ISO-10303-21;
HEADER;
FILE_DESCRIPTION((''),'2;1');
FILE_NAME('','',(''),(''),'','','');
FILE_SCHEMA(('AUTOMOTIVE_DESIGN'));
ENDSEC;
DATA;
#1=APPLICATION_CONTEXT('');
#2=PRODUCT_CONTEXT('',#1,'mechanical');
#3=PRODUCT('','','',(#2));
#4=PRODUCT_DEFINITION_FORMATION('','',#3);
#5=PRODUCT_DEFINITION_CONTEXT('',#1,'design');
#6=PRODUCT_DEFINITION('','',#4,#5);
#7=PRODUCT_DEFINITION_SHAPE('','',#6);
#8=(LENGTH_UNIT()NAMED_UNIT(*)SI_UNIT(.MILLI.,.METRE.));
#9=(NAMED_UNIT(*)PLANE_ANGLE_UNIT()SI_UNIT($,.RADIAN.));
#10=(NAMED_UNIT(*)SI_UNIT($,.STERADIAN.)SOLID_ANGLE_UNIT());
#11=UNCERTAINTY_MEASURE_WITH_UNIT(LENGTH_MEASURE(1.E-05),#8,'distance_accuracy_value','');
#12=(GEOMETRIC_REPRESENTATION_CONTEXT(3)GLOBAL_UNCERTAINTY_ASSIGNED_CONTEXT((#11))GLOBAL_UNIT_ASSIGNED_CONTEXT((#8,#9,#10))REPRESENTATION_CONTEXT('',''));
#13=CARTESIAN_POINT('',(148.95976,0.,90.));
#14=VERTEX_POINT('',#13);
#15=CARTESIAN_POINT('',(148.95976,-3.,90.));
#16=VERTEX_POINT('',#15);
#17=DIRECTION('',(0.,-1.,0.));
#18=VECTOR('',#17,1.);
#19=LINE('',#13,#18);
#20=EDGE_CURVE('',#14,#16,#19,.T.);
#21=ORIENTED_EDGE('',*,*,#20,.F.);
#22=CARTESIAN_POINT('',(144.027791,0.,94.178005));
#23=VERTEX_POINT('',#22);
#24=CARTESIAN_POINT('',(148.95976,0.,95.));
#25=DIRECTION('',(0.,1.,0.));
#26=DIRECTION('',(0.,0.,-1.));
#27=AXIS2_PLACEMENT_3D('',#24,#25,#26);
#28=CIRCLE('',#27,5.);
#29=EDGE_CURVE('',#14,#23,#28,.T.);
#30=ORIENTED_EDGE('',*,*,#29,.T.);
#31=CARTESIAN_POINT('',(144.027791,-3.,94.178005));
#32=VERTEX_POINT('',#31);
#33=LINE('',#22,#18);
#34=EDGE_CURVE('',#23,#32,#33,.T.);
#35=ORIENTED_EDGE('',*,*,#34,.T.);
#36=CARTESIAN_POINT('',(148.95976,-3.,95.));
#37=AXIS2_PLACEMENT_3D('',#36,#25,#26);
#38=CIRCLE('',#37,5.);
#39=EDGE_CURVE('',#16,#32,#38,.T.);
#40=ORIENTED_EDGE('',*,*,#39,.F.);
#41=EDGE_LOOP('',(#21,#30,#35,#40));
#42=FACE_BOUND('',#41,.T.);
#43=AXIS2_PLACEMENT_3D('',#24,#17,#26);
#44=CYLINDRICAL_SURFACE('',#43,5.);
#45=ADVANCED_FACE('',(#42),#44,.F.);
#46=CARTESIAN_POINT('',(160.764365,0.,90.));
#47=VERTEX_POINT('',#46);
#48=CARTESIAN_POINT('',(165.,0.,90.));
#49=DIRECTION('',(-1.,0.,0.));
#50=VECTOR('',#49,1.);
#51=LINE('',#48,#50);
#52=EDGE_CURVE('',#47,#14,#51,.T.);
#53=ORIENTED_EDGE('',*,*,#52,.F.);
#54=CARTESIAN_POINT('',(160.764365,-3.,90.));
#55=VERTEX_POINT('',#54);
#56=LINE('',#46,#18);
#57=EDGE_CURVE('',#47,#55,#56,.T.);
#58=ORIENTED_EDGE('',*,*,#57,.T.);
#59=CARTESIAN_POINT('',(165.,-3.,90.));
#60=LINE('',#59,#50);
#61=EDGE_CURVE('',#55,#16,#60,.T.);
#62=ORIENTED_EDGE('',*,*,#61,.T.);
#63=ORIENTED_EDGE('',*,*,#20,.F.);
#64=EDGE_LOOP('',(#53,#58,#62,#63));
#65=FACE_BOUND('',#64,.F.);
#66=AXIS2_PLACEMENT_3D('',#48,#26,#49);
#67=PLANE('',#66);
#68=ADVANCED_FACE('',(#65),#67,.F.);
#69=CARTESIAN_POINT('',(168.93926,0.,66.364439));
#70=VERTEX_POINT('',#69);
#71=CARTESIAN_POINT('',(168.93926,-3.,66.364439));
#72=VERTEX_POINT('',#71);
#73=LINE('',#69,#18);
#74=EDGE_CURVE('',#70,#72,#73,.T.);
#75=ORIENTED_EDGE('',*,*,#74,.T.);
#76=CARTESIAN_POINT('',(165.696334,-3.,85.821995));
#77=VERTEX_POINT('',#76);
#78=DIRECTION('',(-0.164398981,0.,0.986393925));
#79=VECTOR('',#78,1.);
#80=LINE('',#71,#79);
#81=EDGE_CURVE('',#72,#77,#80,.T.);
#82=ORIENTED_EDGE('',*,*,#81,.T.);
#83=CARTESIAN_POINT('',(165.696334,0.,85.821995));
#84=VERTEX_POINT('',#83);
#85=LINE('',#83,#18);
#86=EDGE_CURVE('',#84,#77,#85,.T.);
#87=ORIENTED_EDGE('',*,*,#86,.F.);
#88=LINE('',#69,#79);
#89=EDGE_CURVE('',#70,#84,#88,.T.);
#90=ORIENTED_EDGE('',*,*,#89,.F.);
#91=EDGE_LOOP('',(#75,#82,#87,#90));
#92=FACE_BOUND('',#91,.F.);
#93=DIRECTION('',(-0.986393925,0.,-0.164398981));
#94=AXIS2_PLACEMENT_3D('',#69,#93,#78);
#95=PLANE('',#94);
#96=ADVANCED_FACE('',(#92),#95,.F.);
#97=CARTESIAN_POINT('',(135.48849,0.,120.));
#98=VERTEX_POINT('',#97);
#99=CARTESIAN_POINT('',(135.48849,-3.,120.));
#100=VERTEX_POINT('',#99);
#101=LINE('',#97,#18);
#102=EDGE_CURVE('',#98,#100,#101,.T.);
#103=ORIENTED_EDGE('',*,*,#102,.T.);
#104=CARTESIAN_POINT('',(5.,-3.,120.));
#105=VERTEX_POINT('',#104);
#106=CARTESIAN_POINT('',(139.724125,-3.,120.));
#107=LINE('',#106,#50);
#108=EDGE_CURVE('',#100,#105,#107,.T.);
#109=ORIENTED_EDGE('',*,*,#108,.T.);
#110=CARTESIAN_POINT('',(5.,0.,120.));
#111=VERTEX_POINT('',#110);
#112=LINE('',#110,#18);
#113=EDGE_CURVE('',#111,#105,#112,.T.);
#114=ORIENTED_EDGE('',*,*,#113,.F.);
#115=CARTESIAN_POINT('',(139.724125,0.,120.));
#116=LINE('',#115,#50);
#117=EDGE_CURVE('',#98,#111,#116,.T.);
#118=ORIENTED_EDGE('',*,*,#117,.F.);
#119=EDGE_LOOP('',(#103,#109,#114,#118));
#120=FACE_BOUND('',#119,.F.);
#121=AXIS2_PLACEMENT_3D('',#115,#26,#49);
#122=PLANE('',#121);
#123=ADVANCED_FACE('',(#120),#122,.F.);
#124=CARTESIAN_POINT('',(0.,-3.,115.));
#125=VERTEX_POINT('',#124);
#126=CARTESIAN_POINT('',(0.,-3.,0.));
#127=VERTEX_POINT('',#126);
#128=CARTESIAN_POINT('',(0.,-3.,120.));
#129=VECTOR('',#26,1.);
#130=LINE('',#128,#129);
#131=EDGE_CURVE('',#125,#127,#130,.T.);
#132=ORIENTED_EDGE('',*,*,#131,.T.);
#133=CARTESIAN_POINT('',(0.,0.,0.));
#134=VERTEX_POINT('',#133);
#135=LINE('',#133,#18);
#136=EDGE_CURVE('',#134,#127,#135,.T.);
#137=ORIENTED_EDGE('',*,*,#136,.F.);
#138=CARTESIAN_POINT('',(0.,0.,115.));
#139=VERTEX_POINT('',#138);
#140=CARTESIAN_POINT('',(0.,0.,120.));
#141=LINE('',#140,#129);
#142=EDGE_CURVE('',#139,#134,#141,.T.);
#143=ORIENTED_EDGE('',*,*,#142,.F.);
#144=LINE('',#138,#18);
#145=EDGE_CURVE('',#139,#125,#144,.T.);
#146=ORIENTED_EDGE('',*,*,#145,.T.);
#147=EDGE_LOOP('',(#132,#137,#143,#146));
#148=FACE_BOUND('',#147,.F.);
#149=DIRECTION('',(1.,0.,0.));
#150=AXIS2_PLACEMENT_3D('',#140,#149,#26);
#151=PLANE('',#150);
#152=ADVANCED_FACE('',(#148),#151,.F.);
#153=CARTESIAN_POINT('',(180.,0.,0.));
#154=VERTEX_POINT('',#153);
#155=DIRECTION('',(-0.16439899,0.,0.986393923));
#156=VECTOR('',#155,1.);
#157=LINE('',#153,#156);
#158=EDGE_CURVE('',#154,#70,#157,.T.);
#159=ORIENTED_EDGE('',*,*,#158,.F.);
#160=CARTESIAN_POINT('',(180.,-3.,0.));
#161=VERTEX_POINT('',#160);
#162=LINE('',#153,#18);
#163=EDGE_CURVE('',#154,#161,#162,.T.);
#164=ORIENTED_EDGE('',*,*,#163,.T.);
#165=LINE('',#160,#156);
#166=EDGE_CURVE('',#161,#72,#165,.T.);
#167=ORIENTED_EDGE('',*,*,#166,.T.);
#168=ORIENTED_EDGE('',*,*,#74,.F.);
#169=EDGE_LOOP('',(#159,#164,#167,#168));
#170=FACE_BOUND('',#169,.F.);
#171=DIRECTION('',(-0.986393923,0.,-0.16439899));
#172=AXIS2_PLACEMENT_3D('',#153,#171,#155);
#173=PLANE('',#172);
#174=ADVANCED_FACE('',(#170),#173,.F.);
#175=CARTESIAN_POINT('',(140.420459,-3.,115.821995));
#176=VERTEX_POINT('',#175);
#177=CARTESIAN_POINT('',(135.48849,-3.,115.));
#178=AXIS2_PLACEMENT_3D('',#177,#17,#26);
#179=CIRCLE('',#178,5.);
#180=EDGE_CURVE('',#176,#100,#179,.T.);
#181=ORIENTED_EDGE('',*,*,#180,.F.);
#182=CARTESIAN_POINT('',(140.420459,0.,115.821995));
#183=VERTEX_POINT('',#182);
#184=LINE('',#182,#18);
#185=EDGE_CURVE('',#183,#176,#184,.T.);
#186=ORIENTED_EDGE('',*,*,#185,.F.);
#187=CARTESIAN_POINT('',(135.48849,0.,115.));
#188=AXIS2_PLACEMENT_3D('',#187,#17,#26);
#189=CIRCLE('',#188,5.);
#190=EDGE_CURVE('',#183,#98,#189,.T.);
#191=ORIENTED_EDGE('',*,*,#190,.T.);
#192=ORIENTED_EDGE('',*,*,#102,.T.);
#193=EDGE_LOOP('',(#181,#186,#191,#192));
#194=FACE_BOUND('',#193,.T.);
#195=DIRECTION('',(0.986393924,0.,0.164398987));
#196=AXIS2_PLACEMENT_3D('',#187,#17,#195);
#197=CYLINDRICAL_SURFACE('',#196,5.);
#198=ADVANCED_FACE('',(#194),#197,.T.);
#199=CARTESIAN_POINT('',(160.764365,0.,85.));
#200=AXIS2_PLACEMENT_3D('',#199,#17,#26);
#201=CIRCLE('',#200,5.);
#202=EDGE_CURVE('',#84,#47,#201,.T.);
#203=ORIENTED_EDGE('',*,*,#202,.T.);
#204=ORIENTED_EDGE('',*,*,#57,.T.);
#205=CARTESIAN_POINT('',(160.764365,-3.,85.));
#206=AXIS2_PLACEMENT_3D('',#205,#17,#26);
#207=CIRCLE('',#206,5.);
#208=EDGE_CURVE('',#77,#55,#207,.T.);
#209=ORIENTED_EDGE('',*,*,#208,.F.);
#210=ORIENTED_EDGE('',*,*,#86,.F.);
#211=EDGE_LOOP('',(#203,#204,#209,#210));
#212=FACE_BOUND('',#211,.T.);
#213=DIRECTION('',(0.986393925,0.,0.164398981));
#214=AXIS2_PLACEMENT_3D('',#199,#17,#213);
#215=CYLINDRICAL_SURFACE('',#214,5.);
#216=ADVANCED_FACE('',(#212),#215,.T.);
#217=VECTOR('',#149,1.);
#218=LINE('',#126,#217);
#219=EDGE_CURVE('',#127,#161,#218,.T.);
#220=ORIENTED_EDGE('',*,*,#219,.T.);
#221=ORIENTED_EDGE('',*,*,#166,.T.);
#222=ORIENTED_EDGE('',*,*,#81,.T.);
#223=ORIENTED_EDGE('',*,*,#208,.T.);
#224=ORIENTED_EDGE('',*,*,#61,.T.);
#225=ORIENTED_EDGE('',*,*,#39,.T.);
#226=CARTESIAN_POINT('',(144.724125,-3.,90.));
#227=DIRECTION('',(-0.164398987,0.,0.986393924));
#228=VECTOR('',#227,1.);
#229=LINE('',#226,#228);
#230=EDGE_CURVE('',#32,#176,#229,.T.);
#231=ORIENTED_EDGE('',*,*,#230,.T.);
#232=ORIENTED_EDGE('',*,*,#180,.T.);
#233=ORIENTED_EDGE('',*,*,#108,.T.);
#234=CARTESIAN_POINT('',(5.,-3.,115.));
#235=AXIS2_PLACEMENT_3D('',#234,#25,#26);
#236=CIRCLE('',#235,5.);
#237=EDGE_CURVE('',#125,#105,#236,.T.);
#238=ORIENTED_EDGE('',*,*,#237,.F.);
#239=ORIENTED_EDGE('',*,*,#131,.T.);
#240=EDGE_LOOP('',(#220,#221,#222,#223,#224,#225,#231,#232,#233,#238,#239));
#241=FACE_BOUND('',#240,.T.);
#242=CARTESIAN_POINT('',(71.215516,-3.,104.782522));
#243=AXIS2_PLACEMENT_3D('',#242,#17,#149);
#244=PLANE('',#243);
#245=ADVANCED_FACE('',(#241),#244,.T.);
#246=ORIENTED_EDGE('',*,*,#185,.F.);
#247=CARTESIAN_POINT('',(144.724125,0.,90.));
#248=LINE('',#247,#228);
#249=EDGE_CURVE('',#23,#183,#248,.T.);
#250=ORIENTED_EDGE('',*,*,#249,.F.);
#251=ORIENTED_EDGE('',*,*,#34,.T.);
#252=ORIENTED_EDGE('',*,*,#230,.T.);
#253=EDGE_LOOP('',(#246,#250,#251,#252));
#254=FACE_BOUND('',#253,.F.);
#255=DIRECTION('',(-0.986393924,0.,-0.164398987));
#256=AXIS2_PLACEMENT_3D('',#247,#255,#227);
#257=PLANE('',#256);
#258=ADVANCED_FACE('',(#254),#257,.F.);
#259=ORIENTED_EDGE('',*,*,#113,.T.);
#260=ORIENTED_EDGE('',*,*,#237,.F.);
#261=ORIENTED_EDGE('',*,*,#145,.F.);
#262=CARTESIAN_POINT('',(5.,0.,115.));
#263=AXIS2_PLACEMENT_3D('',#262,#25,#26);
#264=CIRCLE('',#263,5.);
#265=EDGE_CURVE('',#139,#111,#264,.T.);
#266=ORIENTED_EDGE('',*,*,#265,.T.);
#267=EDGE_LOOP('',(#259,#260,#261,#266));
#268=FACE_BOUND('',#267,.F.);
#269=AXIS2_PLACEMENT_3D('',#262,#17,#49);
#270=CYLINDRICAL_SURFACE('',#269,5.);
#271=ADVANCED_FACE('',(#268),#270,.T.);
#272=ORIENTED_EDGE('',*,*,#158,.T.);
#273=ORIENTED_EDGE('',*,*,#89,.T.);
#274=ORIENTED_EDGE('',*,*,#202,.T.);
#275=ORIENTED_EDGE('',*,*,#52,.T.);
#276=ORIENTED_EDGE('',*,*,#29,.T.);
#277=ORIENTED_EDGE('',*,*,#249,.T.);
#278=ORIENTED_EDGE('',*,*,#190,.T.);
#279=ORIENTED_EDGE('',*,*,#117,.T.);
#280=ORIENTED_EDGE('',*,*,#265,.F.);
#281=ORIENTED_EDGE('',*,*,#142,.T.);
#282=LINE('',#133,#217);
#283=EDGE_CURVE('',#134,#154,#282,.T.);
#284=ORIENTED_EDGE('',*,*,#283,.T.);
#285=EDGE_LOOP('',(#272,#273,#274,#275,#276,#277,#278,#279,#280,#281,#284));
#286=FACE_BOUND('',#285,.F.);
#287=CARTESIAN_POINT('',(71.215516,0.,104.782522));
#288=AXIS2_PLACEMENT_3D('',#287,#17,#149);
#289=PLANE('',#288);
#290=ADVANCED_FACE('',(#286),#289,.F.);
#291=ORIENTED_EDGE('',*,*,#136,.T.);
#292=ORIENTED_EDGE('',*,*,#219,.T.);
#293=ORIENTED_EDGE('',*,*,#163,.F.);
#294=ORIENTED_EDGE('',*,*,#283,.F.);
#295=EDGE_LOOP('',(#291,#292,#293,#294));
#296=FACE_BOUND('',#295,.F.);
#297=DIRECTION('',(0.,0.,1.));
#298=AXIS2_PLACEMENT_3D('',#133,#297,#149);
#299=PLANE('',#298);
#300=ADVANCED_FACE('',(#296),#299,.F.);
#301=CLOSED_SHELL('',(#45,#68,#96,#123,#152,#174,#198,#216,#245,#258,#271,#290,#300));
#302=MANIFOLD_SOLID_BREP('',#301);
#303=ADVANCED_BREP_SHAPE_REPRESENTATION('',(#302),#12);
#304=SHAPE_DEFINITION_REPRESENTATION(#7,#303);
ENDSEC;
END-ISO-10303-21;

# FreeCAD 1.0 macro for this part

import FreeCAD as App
import Part
import Sketcher
from FreeCAD import Vector


def edges_at(feature, points):
    """Names of the edges that pass closest to the given points."""
    edges = feature.Shape.Edges
    near = lambda p: min(range(len(edges)), key=lambda i: edges[i].distToShape(Part.Vertex(*p))[0])
    return sorted({f"Edge{near(p) + 1}" for p in points})

doc = App.newDocument("Part")
body = doc.addObject("PartDesign::Body", "Body")

sketch1 = body.newObject("Sketcher::SketchObject", "Sketch")
sketch1.AttachmentSupport = (doc.getObject("XZ_Plane"), [""])
sketch1.MapMode = "FlatFace"
sketch1.addGeometry([
    Part.LineSegment(Vector(0, 120, 0), Vector(0, 0, 0)),
    Part.LineSegment(Vector(0, 0, 0), Vector(180, 0, 0)),
    Part.LineSegment(Vector(180, 0, 0), Vector(168.93926, 66.364439, 0)),
    Part.LineSegment(Vector(168.93926, 66.364439, 0), Vector(165, 90, 0)),
    Part.LineSegment(Vector(165, 90, 0), Vector(144.724125, 90, 0)),
    Part.LineSegment(Vector(144.724125, 90, 0), Vector(139.724125, 120, 0)),
    Part.LineSegment(Vector(139.724125, 120, 0), Vector(0, 120, 0)),
], False)
sketch1.addConstraint([
    Sketcher.Constraint("Coincident", 0, 2, 1, 1),
    Sketcher.Constraint("Coincident", 1, 2, 2, 1),
    Sketcher.Constraint("Coincident", 2, 2, 3, 1),
    Sketcher.Constraint("Coincident", 3, 2, 4, 1),
    Sketcher.Constraint("Coincident", 4, 2, 5, 1),
    Sketcher.Constraint("Coincident", 5, 2, 6, 1),
    Sketcher.Constraint("Coincident", 6, 2, 0, 1),
    Sketcher.Constraint("Vertical", 0),
    Sketcher.Constraint("Horizontal", 1),
    Sketcher.Constraint("Horizontal", 4),
    Sketcher.Constraint("Horizontal", 6),
    Sketcher.Constraint("Coincident", 0, 2, -1, 1),
    Sketcher.Constraint("Parallel", 2, 3),
    Sketcher.Constraint("Parallel", 3, 5),
    Sketcher.Constraint("DistanceX", 1, 1, 1, 2, 180.0),
    Sketcher.Constraint("DistanceY", 0, 2, 0, 1, 120.0),
    Sketcher.Constraint("DistanceX", -1, 1, 3, 2, 165.0),
    Sketcher.Constraint("DistanceY", -1, 1, 3, 2, 90.0),
    Sketcher.Constraint("DistanceX", 4, 2, 4, 1, 20.275875),
    Sketcher.Constraint("DistanceX", -1, 1, 2, 2, 168.93926),
])
pad1 = body.newObject("PartDesign::Pad", "Pad")
pad1.Profile = sketch1
pad1.Length = 3
doc.recompute()

fillet = body.newObject("PartDesign::Fillet", "Fillet")
fillet.Base = (pad1, edges_at(pad1, [
    (165, -1.5, 90),
    (144.724, -1.5, 90),
    (139.724, -1.5, 120),
    (0, -1.5, 120),
]))
fillet.Radius = 5

doc.recompute()
